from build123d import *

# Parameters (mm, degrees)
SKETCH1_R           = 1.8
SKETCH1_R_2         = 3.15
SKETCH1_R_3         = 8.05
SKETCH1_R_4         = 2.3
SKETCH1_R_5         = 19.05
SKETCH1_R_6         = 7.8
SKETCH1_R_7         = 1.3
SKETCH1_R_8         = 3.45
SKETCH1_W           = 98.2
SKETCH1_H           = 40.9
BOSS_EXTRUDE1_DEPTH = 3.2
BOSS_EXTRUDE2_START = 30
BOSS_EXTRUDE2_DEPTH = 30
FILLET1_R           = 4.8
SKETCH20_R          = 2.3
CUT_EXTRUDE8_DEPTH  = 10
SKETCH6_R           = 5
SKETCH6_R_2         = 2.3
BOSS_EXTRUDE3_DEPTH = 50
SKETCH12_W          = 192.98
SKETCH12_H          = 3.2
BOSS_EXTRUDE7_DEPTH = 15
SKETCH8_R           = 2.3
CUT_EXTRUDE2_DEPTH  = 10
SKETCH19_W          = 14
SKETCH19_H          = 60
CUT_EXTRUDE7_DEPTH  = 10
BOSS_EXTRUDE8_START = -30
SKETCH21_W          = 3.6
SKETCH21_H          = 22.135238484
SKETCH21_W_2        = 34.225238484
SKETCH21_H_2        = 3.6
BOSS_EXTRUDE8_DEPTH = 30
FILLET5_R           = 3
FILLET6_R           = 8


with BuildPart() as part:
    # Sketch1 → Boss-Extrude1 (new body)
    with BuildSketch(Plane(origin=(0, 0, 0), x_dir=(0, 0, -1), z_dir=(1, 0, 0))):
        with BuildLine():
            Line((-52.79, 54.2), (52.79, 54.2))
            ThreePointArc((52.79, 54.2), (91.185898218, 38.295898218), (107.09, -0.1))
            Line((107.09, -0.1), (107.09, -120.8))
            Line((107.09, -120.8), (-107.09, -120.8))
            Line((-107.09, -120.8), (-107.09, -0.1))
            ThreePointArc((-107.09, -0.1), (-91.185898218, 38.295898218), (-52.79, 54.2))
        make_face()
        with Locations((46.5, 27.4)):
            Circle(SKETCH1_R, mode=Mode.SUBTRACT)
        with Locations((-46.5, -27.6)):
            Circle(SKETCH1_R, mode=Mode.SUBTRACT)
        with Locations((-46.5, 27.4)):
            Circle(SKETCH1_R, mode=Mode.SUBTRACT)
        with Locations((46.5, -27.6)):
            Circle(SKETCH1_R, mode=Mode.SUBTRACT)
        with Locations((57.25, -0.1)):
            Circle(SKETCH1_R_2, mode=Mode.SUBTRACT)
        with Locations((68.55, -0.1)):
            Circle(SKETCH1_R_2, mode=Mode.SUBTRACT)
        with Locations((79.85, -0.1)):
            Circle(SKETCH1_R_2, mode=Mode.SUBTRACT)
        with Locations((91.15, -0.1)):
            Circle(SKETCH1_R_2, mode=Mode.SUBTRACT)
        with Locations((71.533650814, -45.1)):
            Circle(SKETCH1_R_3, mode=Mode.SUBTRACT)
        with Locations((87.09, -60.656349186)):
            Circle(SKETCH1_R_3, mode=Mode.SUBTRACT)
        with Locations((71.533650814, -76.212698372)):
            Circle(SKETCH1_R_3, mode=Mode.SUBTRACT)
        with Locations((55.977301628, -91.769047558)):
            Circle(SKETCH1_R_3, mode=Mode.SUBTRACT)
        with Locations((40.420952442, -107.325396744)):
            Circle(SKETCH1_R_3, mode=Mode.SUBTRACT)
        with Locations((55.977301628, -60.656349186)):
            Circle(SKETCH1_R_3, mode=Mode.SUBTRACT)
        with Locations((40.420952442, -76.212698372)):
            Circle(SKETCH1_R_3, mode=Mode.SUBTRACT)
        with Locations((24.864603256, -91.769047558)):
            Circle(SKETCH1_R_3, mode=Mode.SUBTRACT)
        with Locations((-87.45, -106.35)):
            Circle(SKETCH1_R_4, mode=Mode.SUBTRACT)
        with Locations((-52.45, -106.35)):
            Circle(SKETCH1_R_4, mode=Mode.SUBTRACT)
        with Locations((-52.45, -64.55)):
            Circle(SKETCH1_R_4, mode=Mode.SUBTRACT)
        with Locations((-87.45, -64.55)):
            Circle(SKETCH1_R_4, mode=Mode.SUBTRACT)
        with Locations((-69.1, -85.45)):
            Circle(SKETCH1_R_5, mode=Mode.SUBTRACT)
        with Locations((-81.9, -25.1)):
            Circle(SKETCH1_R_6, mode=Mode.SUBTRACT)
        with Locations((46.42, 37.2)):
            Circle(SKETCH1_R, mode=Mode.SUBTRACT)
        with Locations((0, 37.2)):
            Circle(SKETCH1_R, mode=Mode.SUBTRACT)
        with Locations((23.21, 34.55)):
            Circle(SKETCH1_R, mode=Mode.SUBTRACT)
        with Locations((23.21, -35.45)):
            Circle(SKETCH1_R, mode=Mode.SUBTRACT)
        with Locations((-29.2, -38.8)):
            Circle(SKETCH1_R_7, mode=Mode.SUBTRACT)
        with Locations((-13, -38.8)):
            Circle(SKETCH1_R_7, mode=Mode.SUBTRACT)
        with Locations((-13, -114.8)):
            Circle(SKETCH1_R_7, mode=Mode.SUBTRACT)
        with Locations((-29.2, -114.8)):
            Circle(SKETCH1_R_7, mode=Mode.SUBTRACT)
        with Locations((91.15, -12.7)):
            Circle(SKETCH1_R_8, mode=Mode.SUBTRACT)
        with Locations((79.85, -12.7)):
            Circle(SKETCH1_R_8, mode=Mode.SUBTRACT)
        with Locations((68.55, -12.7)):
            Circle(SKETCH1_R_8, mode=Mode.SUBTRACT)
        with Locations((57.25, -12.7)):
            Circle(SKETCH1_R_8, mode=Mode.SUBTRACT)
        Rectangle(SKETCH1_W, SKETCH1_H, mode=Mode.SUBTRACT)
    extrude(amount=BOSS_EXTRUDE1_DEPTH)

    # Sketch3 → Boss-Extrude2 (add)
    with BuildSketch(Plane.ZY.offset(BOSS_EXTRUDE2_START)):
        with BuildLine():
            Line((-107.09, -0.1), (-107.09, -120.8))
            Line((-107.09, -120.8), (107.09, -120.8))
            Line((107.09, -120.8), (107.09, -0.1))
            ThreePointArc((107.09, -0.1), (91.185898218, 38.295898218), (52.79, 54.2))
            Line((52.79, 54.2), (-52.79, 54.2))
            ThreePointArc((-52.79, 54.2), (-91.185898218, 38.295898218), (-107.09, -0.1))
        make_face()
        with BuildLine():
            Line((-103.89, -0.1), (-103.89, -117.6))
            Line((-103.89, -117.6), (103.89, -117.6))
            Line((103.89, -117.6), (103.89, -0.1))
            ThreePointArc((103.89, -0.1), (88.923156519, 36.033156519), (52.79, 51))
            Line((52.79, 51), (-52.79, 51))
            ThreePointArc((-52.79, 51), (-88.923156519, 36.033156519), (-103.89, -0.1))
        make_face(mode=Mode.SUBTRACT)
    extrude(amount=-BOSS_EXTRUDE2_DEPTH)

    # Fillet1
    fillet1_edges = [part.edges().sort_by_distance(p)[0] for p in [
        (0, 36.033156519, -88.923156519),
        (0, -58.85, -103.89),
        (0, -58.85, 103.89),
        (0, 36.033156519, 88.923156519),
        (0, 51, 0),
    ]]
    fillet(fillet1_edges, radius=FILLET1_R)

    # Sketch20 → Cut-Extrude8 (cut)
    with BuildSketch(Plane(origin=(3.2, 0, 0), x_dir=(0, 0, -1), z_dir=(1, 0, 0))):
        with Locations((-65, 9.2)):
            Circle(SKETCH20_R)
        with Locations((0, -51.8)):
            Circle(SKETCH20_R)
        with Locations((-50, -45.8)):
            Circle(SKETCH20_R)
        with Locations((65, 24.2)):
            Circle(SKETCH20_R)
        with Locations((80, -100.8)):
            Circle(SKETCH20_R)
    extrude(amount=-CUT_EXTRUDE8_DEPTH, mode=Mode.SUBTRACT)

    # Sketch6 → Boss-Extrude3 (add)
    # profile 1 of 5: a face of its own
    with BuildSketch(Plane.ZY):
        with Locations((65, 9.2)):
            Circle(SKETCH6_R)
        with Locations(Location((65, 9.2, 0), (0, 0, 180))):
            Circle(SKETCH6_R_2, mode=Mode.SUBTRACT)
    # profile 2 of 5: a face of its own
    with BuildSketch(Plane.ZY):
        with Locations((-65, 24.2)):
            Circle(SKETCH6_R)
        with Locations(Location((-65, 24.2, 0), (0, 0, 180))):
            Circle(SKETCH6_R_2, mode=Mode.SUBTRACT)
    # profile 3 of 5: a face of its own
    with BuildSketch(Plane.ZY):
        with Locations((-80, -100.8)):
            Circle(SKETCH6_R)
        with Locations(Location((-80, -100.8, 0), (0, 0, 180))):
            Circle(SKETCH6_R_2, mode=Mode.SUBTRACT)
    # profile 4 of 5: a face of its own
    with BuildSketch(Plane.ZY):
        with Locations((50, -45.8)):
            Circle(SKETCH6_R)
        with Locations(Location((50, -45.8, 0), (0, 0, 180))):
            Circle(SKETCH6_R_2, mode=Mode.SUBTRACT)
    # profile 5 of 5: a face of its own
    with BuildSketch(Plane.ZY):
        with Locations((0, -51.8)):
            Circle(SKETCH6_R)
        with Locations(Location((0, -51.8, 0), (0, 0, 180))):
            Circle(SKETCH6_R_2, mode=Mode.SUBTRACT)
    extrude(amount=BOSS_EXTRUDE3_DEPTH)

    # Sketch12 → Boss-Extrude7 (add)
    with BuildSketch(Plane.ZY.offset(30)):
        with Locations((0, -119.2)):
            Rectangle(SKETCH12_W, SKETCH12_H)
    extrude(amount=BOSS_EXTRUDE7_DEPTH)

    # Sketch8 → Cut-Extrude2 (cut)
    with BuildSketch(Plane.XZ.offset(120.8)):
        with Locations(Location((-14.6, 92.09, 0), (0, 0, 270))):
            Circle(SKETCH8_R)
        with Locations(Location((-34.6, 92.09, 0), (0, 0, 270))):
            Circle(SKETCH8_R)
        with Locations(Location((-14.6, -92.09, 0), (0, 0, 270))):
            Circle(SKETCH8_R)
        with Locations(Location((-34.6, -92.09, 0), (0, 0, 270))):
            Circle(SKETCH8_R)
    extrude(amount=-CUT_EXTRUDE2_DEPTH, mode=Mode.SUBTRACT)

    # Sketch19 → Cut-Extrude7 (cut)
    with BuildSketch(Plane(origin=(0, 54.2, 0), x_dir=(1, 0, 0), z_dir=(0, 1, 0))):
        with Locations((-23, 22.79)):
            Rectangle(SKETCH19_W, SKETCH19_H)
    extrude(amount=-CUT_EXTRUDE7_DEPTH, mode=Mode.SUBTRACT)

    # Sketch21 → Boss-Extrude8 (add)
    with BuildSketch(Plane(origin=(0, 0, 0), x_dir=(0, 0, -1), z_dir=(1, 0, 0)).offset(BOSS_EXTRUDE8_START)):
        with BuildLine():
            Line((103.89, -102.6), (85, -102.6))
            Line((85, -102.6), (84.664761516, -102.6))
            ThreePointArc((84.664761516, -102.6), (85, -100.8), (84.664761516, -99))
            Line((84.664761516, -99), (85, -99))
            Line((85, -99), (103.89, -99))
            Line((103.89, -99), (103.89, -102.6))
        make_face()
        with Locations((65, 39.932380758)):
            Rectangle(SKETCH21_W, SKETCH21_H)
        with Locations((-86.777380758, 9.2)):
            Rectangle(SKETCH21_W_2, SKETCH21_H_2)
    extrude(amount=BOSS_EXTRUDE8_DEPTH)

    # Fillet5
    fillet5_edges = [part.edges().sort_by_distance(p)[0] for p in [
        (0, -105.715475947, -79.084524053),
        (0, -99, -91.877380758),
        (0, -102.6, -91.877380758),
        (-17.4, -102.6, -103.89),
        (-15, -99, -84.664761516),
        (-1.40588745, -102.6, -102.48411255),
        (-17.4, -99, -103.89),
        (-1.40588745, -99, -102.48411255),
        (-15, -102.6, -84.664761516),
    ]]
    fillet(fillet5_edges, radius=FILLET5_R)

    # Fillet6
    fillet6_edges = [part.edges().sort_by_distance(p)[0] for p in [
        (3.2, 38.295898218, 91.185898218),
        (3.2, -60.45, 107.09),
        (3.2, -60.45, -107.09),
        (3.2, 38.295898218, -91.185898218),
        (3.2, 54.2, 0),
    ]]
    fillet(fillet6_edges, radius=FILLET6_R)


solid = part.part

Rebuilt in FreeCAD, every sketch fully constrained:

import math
import FreeCAD as App
import Part
import Sketcher

V = App.Vector


def edges_at(feature, points):
    """Names of the edges that pass closest to the given points."""
    edges = feature.Shape.Edges
    near = lambda p: min(range(len(edges)), key=lambda i: edges[i].distToShape(Part.Vertex(*p))[0])
    return sorted({f"Edge{near(p) + 1}" for p in points})

doc = App.newDocument("Part")
body = doc.addObject("PartDesign::Body", "Body")

# Sketch on YZ plane
sketch1 = body.newObject("Sketcher::SketchObject", "Sketch")
sketch1.AttachmentSupport = (doc.getObject("YZ_Plane"), [""])
sketch1.MapMode = "FlatFace"
sketch1.addGeometry([
    Part.LineSegment(V(54.2, -52.8, 0), V(54.2, 52.8, 0)),  # 0
    Part.ArcOfCircle(Part.Circle(V(-0.1, 52.8, 0), V(0, 0, 1), 54.3), math.radians(0), math.radians(90)),  # 1
    Part.LineSegment(V(-0.1, 107.1, 0), V(-120.8, 107.1, 0)),  # 2
    Part.LineSegment(V(-120.8, 107.1, 0), V(-120.8, -107.1, 0)),  # 3
    Part.LineSegment(V(-120.8, -107.1, 0), V(-0.1, -107.1, 0)),  # 4
    Part.ArcOfCircle(Part.Circle(V(-0.1, -52.8, 0), V(0, 0, 1), 54.3), math.radians(-90), math.radians(0)),  # 5
    Part.Circle(V(-91.8, -56, 0), V(0, 0, 1), 8.1),  # 6
    Part.Circle(V(-107.3, -40.4, 0), V(0, 0, 1), 8.1),  # 7
    Part.Circle(V(-91.8, -24.9, 0), V(0, 0, 1), 8.1),  # 8
    Part.Circle(V(-60.7, -87.1, 0), V(0, 0, 1), 8.1),  # 9
    Part.Circle(V(-76.2, -71.5, 0), V(0, 0, 1), 8.1),  # 10
    Part.Circle(V(-60.7, -56, 0), V(0, 0, 1), 8.1),  # 11
    Part.Circle(V(-45.1, -71.5, 0), V(0, 0, 1), 8.1),  # 12
    Part.Circle(V(-76.2, -40.4, 0), V(0, 0, 1), 8.1),  # 13
    Part.Circle(V(-114.8, 13, 0), V(0, 0, 1), 1.3),  # 14
    Part.Circle(V(-114.8, 29.2, 0), V(0, 0, 1), 1.3),  # 15
    Part.Circle(V(-106.3, 52.5, 0), V(0, 0, 1), 2.3),  # 16
    Part.Circle(V(-106.3, 87.5, 0), V(0, 0, 1), 2.3),  # 17
    Part.Circle(V(-85.5, 69.1, 0), V(0, 0, 1), 19.1),  # 18
    Part.Circle(V(-38.8, 13, 0), V(0, 0, 1), 1.3),  # 19
    Part.Circle(V(-38.8, 29.2, 0), V(0, 0, 1), 1.3),  # 20
    Part.Circle(V(-64.5, 52.5, 0), V(0, 0, 1), 2.3),  # 21
    Part.Circle(V(-64.5, 87.5, 0), V(0, 0, 1), 2.3),  # 22
    Part.Circle(V(-12.7, -91.2, 0), V(0, 0, 1), 3.5),  # 23
    Part.Circle(V(-12.7, -79.8, 0), V(0, 0, 1), 3.5),  # 24
    Part.Circle(V(-0.1, -91.2, 0), V(0, 0, 1), 3.1),  # 25
    Part.Circle(V(-0.1, -79.8, 0), V(0, 0, 1), 3.1),  # 26
    Part.Circle(V(-12.7, -68.5, 0), V(0, 0, 1), 3.5),  # 27
    Part.Circle(V(-12.7, -57.2, 0), V(0, 0, 1), 3.5),  # 28
    Part.Circle(V(-0.1, -68.5, 0), V(0, 0, 1), 3.1),  # 29
    Part.Circle(V(-0.1, -57.2, 0), V(0, 0, 1), 3.1),  # 30
    Part.Circle(V(-27.6, -46.5, 0), V(0, 0, 1), 1.8),  # 31
    Part.Circle(V(-35.5, -23.2, 0), V(0, 0, 1), 1.8),  # 32
    Part.Circle(V(27.4, -46.5, 0), V(0, 0, 1), 1.8),  # 33
    Part.Circle(V(37.2, -46.4, 0), V(0, 0, 1), 1.8),  # 34
    Part.Circle(V(34.5, -23.2, 0), V(0, 0, 1), 1.8),  # 35
    Part.LineSegment(V(-20.4, 49.1, 0), V(20.4, 49.1, 0)),  # 36
    Part.LineSegment(V(20.4, 49.1, 0), V(20.4, -49.1, 0)),  # 37
    Part.LineSegment(V(20.4, -49.1, 0), V(-20.4, -49.1, 0)),  # 38
    Part.LineSegment(V(-20.4, -49.1, 0), V(-20.4, 49.1, 0)),  # 39
    Part.Circle(V(-27.6, 46.5, 0), V(0, 0, 1), 1.8),  # 40
    Part.Circle(V(-25.1, 81.9, 0), V(0, 0, 1), 7.8),  # 41
    Part.Circle(V(37.2, 0, 0), V(0, 0, 1), 1.8),  # 42
    Part.Circle(V(27.4, 46.5, 0), V(0, 0, 1), 1.8),  # 43
], False)
sketch1.addConstraint([
    Sketcher.Constraint("Tangent", 0, 2, 1, 1),
    Sketcher.Constraint("Tangent", 1, 2, 2, 1),
    Sketcher.Constraint("Coincident", 2, 2, 3, 1),
    Sketcher.Constraint("Coincident", 3, 2, 4, 1),
    Sketcher.Constraint("Tangent", 4, 2, 5, 1),
    Sketcher.Constraint("Tangent", 5, 2, 0, 1),
    Sketcher.Constraint("Coincident", 36, 2, 37, 1),
    Sketcher.Constraint("Coincident", 37, 2, 38, 1),
    Sketcher.Constraint("Coincident", 38, 2, 39, 1),
    Sketcher.Constraint("Coincident", 39, 2, 36, 1),
    Sketcher.Constraint("Vertical", 0),
    Sketcher.Constraint("Horizontal", 2),
    Sketcher.Constraint("Vertical", 3),
    Sketcher.Constraint("Horizontal", 4),
    Sketcher.Constraint("Horizontal", 36),
    Sketcher.Constraint("Vertical", 37),
    Sketcher.Constraint("Horizontal", 38),
    Sketcher.Constraint("Vertical", 39),
    Sketcher.Constraint("Equal", 1, 5),
    Sketcher.Constraint("Equal", 6, 7),
    Sketcher.Constraint("Equal", 7, 8),
    Sketcher.Constraint("Equal", 8, 9),
    Sketcher.Constraint("Equal", 9, 10),
    Sketcher.Constraint("Equal", 10, 11),
    Sketcher.Constraint("Equal", 11, 12),
    Sketcher.Constraint("Equal", 12, 13),
    Sketcher.Constraint("Equal", 14, 15),
    Sketcher.Constraint("Equal", 16, 17),
    Sketcher.Constraint("Equal", 15, 19),
    Sketcher.Constraint("Equal", 19, 20),
    Sketcher.Constraint("Equal", 17, 21),
    Sketcher.Constraint("Equal", 21, 22),
    Sketcher.Constraint("Equal", 23, 24),
    Sketcher.Constraint("Equal", 25, 26),
    Sketcher.Constraint("Equal", 24, 27),
    Sketcher.Constraint("Equal", 27, 28),
    Sketcher.Constraint("Equal", 26, 29),
    Sketcher.Constraint("Equal", 29, 30),
    Sketcher.Constraint("Equal", 31, 32),
    Sketcher.Constraint("Equal", 32, 33),
    Sketcher.Constraint("Equal", 33, 34),
    Sketcher.Constraint("Equal", 34, 35),
    Sketcher.Constraint("Equal", 35, 40),
    Sketcher.Constraint("Equal", 40, 42),
    Sketcher.Constraint("Equal", 42, 43),
    Sketcher.Constraint("Symmetric", 36, 2, 38, 2, -1, 1),
    Sketcher.Constraint("Symmetric", 31, 3, 40, 3, -1),
    Sketcher.Constraint("Symmetric", 33, 3, 43, 3, -1),
    Sketcher.Constraint("PointOnObject", 42, 3, -1),
    Sketcher.Constraint("Horizontal", 6, 3, 11, 3),
    Sketcher.Constraint("Horizontal", 10, 3, 12, 3),
    Sketcher.Constraint("Horizontal", 7, 3, 13, 3),
    Sketcher.Constraint("Horizontal", 14, 3, 19, 3),
    Sketcher.Constraint("Horizontal", 15, 3, 20, 3),
    Sketcher.Constraint("Horizontal", 16, 3, 21, 3),
    Sketcher.Constraint("Horizontal", 17, 3, 22, 3),
    Sketcher.Constraint("Horizontal", 23, 3, 25, 3),
    Sketcher.Constraint("Horizontal", 24, 3, 26, 3),
    Sketcher.Constraint("Horizontal", 27, 3, 29, 3),
    Sketcher.Constraint("Horizontal", 28, 3, 30, 3),
    Sketcher.Constraint("Horizontal", 31, 3, 33, 3),
    Sketcher.Constraint("Horizontal", 32, 3, 35, 3),
    Sketcher.Constraint("Vertical", 6, 3, 8, 3),
    Sketcher.Constraint("Vertical", 9, 3, 11, 3),
    Sketcher.Constraint("Vertical", 10, 3, 13, 3),
    Sketcher.Constraint("Vertical", 14, 3, 15, 3),
    Sketcher.Constraint("Vertical", 16, 3, 17, 3),
    Sketcher.Constraint("Vertical", 19, 3, 20, 3),
    Sketcher.Constraint("Vertical", 21, 3, 22, 3),
    Sketcher.Constraint("Vertical", 23, 3, 24, 3),
    Sketcher.Constraint("Vertical", 5, 3, 25, 3),
    Sketcher.Constraint("Vertical", 25, 3, 26, 3),
    Sketcher.Constraint("Vertical", 24, 3, 27, 3),
    Sketcher.Constraint("Vertical", 27, 3, 28, 3),
    Sketcher.Constraint("Vertical", 26, 3, 29, 3),
    Sketcher.Constraint("Vertical", 29, 3, 30, 3),
    Sketcher.Constraint("Vertical", 34, 3, 42, 3),
    Sketcher.Constraint("Diameter", 6, 16.1),
    Sketcher.Constraint("Diameter", 14, 2.6),
    Sketcher.Constraint("Diameter", 16, 4.6),
    Sketcher.Constraint("Diameter", 18, 38.1),
    Sketcher.Constraint("Diameter", 23, 6.9),
    Sketcher.Constraint("Diameter", 25, 6.3),
    Sketcher.Constraint("Diameter", 31, 3.6),
    Sketcher.Constraint("Diameter", 41, 15.6),
    Sketcher.Constraint("Radius", 1, 54.3),
    Sketcher.Constraint("DistanceX", 2, 2, 2, 1, 120.7),
    Sketcher.Constraint("DistanceX", 36, 1, 36, 2, 40.9),
    Sketcher.Constraint("DistanceY", 37, 2, 37, 1, 98.2),
    Sketcher.Constraint("DistanceY", -1, 1, 14, 3, 13.0),
    Sketcher.Constraint("DistanceX", 12, 3, 5, 3, 45.0),
    Sketcher.Constraint("DistanceY", 16, 3, 17, 3, 35.0),
    Sketcher.Constraint("DistanceX", 41, 3, 1, 3, 25.0),
    Sketcher.Constraint("DistanceX", 40, 3, 43, 3, 55.0),
    Sketcher.Constraint("DistanceX", 42, 3, 0, 2, 17.0),
    Sketcher.Constraint("DistanceY", 35, 3, 0, 2, 76.0),
    Sketcher.Constraint("DistanceX", 2, 2, 15, 3, 6.0),
    Sketcher.Constraint("DistanceY", 3, 2, 9, 3, 20.0),
    Sketcher.Constraint("DistanceY", 0, 1, 0, 2, 105.58),
    Sketcher.Constraint("DistanceX", 1, 3, -1, 1, 0.1),
    Sketcher.Constraint("DistanceY", -1, 1, 15, 3, 29.2),
    Sketcher.Constraint("DistanceY", -1, 1, 18, 3, 69.1),
    Sketcher.Constraint("DistanceX", 19, 3, -1, 1, 38.8),
    Sketcher.Constraint("DistanceX", 23, 3, -1, 1, 12.7),
    Sketcher.Constraint("DistanceX", 31, 3, -1, 1, 27.6),
    Sketcher.Constraint("DistanceY", 31, 3, -1, 1, 46.5),
    Sketcher.Constraint("DistanceY", -1, 1, 41, 3, 81.9),
    Sketcher.Constraint("DistanceX", 16, 3, 18, 3, 20.9),
    Sketcher.Constraint("DistanceX", 18, 3, 21, 3, 20.9),
    Sketcher.Constraint("DistanceY", 23, 3, 24, 3, 11.3),
    Sketcher.Constraint("DistanceY", 24, 3, 27, 3, 11.3),
    Sketcher.Constraint("DistanceY", 27, 3, 28, 3, 11.3),
    Sketcher.Constraint("DistanceY", -1, 1, 1, 3, 52.79),
    Sketcher.Constraint("DistanceX", 16, 3, -1, 1, 106.35),
    Sketcher.Constraint("DistanceY", -1, 1, 16, 3, 52.45),
    Sketcher.Constraint("DistanceY", 23, 3, -1, 1, 91.15),
    Sketcher.Constraint("DistanceX", 32, 3, -1, 1, 35.45),
    Sketcher.Constraint("DistanceY", 34, 3, -1, 1, 46.42),
    Sketcher.Constraint("DistanceX", -1, 1, 35, 3, 34.55),
    Sketcher.Constraint("DistanceY", 6, 3, -1, 1, 55.977302),
    Sketcher.Constraint("DistanceX", 10, 3, -1, 1, 76.212698),
    Sketcher.Constraint("DistanceY", 6, 3, 8, 3, 31.112698),
    Sketcher.Constraint("DistanceX", 6, 3, 9, 3, 31.112698),
    Sketcher.Constraint("DistanceX", 7, 3, 10, 3, 31.112698),
    Sketcher.Constraint("DistanceY", 10, 3, 7, 3, 31.112698),
    Sketcher.Constraint("DistanceX", 9, 3, -1, 1, 60.656349),
    Sketcher.Constraint("DistanceY", 10, 3, -1, 1, 71.533651),
])
pad1 = body.newObject("PartDesign::Pad", "Pad")
pad1.Profile = sketch1
pad1.Length = 3.2

# Sketch on YZ plane
sketch2 = body.newObject("Sketcher::SketchObject", "Sketch001")
sketch2.AttachmentSupport = (doc.getObject("YZ_Plane"), [""])
sketch2.MapMode = "FlatFace"
sketch2.AttachmentOffset = App.Placement(V(0, 0, -30), App.Rotation())
sketch2.addGeometry([
    Part.LineSegment(V(0, -107, 0), V(-121, -107, 0)),  # 0
    Part.LineSegment(V(-121, -107, 0), V(-121, 107, 0)),  # 1
    Part.LineSegment(V(-121, 107, 0), V(0, 107, 0)),  # 2
    Part.ArcOfCircle(Part.Circle(V(0, 53, 0), V(0, 0, 1), 54), math.radians(0), math.radians(90)),  # 3
    Part.LineSegment(V(54, 53, 0), V(54, -53, 0)),  # 4
    Part.ArcOfCircle(Part.Circle(V(0, -53, 0), V(0, 0, 1), 54), math.radians(-90), math.radians(0)),  # 5
    Part.LineSegment(V(-118, -104, 0), V(0, -104, 0)),  # 6
    Part.ArcOfCircle(Part.Circle(V(0, -53, 0), V(0, 0, 1), 51), math.radians(-90), math.radians(0)),  # 7
    Part.LineSegment(V(51, -53, 0), V(51, 53, 0)),  # 8
    Part.ArcOfCircle(Part.Circle(V(0, 53, 0), V(0, 0, 1), 51), math.radians(0), math.radians(90)),  # 9
    Part.LineSegment(V(0, 104, 0), V(-118, 104, 0)),  # 10
    Part.LineSegment(V(-118, 104, 0), V(-118, -104, 0)),  # 11
], False)
sketch2.addConstraint([
    Sketcher.Constraint("Coincident", 0, 2, 1, 1),
    Sketcher.Constraint("Coincident", 1, 2, 2, 1),
    Sketcher.Constraint("Tangent", 2, 2, 3, 2),
    Sketcher.Constraint("Tangent", 3, 1, 4, 1),
    Sketcher.Constraint("Tangent", 4, 2, 5, 2),
    Sketcher.Constraint("Tangent", 5, 1, 0, 1),
    Sketcher.Constraint("Tangent", 6, 2, 7, 1),
    Sketcher.Constraint("Tangent", 7, 2, 8, 1),
    Sketcher.Constraint("Tangent", 8, 2, 9, 1),
    Sketcher.Constraint("Tangent", 9, 2, 10, 1),
    Sketcher.Constraint("Coincident", 10, 2, 11, 1),
    Sketcher.Constraint("Coincident", 11, 2, 6, 1),
    Sketcher.Constraint("Horizontal", 0),
    Sketcher.Constraint("Vertical", 1),
    Sketcher.Constraint("Horizontal", 2),
    Sketcher.Constraint("Vertical", 4),
    Sketcher.Constraint("Horizontal", 6),
    Sketcher.Constraint("Vertical", 8),
    Sketcher.Constraint("Horizontal", 10),
    Sketcher.Constraint("Vertical", 11),
    Sketcher.Constraint("Coincident", 7, 3, 5, 3),
    Sketcher.Constraint("Coincident", 9, 3, 3, 3),
    Sketcher.Constraint("Equal", 3, 5),
    Sketcher.Constraint("Radius", 3, 54.3),
    Sketcher.Constraint("Radius", 7, 51.1),
    Sketcher.Constraint("DistanceX", 0, 2, 0, 1, 120.7),
    Sketcher.Constraint("DistanceX", 6, 1, 6, 2, 117.5),
    Sketcher.Constraint("DistanceX", -1, 1, 7, 2, 51.0),
    Sketcher.Constraint("DistanceY", 1, 1, 1, 2, 214.18),
    Sketcher.Constraint("DistanceY", -1, 1, 3, 3, 52.79),
])
pad2 = body.newObject("PartDesign::Pad", "Pad001")
pad2.Profile = sketch2
pad2.Length = 30
doc.recompute()

fillet = body.newObject("PartDesign::Fillet", "Fillet")
fillet.Base = (pad2, edges_at(pad2, [
    (0, 36.033, -88.923),
    (0, -58.85, -103.89),
    (0, -58.85, 103.89),
    (0, 36.033, 88.923),
    (0, 51, 0),
]))
fillet.Radius = 4.8

# Sketch on YZ plane
sketch3 = body.newObject("Sketcher::SketchObject", "Sketch002")
sketch3.AttachmentSupport = (doc.getObject("YZ_Plane"), [""])
sketch3.MapMode = "FlatFace"
sketch3.AttachmentOffset = App.Placement(V(0, 0, 3.2), App.Rotation())
sketch3.addGeometry([
    Part.Circle(V(9.2, 65, 0), V(0, 0, 1), 2.3),  # 0
    Part.Circle(V(-51.8, 0, 0), V(0, 0, 1), 2.3),  # 1
    Part.Circle(V(-45.8, 50, 0), V(0, 0, 1), 2.3),  # 2
    Part.Circle(V(24.2, -65, 0), V(0, 0, 1), 2.3),  # 3
    Part.Circle(V(-100.8, -80, 0), V(0, 0, 1), 2.3),  # 4
], False)
sketch3.addConstraint([
    Sketcher.Constraint("Equal", 0, 1),
    Sketcher.Constraint("Equal", 1, 2),
    Sketcher.Constraint("Equal", 2, 3),
    Sketcher.Constraint("Equal", 3, 4),
    Sketcher.Constraint("PointOnObject", 1, 3, -1),
    Sketcher.Constraint("Diameter", 0, 4.6),
    Sketcher.Constraint("DistanceY", -1, 1, 0, 3, 65.0),
    Sketcher.Constraint("DistanceY", -1, 1, 2, 3, 50.0),
    Sketcher.Constraint("DistanceY", 3, 3, -1, 1, 65.0),
    Sketcher.Constraint("DistanceY", 4, 3, -1, 1, 80.0),
    Sketcher.Constraint("DistanceX", 1, 3, 0, 3, 61.0),
    Sketcher.Constraint("DistanceX", 1, 3, 2, 3, 6.0),
    Sketcher.Constraint("DistanceX", 1, 3, 3, 3, 76.0),
    Sketcher.Constraint("DistanceX", 4, 3, 1, 3, 49.0),
    Sketcher.Constraint("DistanceX", -1, 1, 0, 3, 9.2),
])
pocket1 = body.newObject("PartDesign::Pocket", "Pocket")
pocket1.Profile = sketch3
pocket1.Length = 10

# Sketch on YZ plane
sketch4 = body.newObject("Sketcher::SketchObject", "Sketch003")
sketch4.AttachmentSupport = (doc.getObject("YZ_Plane"), [""])
sketch4.MapMode = "FlatFace"
sketch4.addGeometry([
    Part.Circle(V(9.2, 65, 0), V(0, 0, 1), 5),  # 0
    Part.Circle(V(9.2, 65, 0), V(0, 0, 1), 2.3),  # 1
    Part.Circle(V(24.2, -65, 0), V(0, 0, 1), 5),  # 2
    Part.Circle(V(24.2, -65, 0), V(0, 0, 1), 2.3),  # 3
    Part.Circle(V(-100.8, -80, 0), V(0, 0, 1), 5),  # 4
    Part.Circle(V(-100.8, -80, 0), V(0, 0, 1), 2.3),  # 5
    Part.Circle(V(-45.8, 50, 0), V(0, 0, 1), 5),  # 6
    Part.Circle(V(-45.8, 50, 0), V(0, 0, 1), 2.3),  # 7
    Part.Circle(V(-51.8, 0, 0), V(0, 0, 1), 5),  # 8
    Part.Circle(V(-51.8, 0, 0), V(0, 0, 1), 2.3),  # 9
], False)
sketch4.addConstraint([
    Sketcher.Constraint("Coincident", 1, 3, 0, 3),
    Sketcher.Constraint("Coincident", 3, 3, 2, 3),
    Sketcher.Constraint("Coincident", 5, 3, 4, 3),
    Sketcher.Constraint("Coincident", 7, 3, 6, 3),
    Sketcher.Constraint("Coincident", 9, 3, 8, 3),
    Sketcher.Constraint("Equal", 0, 2),
    Sketcher.Constraint("Equal", 1, 3),
    Sketcher.Constraint("Equal", 2, 4),
    Sketcher.Constraint("Equal", 3, 5),
    Sketcher.Constraint("Equal", 4, 6),
    Sketcher.Constraint("Equal", 5, 7),
    Sketcher.Constraint("Equal", 6, 8),
    Sketcher.Constraint("Equal", 7, 9),
    Sketcher.Constraint("PointOnObject", 8, 3, -1),
    Sketcher.Constraint("Diameter", 0, 10.0),
    Sketcher.Constraint("Diameter", 1, 4.6),
    Sketcher.Constraint("DistanceY", -1, 1, 0, 3, 65.0),
    Sketcher.Constraint("DistanceY", 2, 3, -1, 1, 65.0),
    Sketcher.Constraint("DistanceY", 4, 3, -1, 1, 80.0),
    Sketcher.Constraint("DistanceY", -1, 1, 6, 3, 50.0),
    Sketcher.Constraint("DistanceX", 0, 3, 2, 3, 15.0),
    Sketcher.Constraint("DistanceX", 4, 3, 2, 3, 125.0),
    Sketcher.Constraint("DistanceX", 6, 3, 0, 3, 55.0),
    Sketcher.Constraint("DistanceX", 8, 3, 6, 3, 6.0),
    Sketcher.Constraint("DistanceX", -1, 1, 0, 3, 9.2),
])
pad3 = body.newObject("PartDesign::Pad", "Pad002")
pad3.Profile = sketch4
pad3.Length = 50
pad3.Reversed = True

# Sketch on YZ plane
sketch5 = body.newObject("Sketcher::SketchObject", "Sketch004")
sketch5.AttachmentSupport = (doc.getObject("YZ_Plane"), [""])
sketch5.MapMode = "FlatFace"
sketch5.AttachmentOffset = App.Placement(V(0, 0, -30), App.Rotation())
sketch5.addGeometry([
    Part.LineSegment(V(-117.6, -96.5, 0), V(-120.8, -96.5, 0)),
    Part.LineSegment(V(-120.8, -96.5, 0), V(-120.8, 96.5, 0)),
    Part.LineSegment(V(-120.8, 96.5, 0), V(-117.6, 96.5, 0)),
    Part.LineSegment(V(-117.6, 96.5, 0), V(-117.6, -96.5, 0)),
], False)
sketch5.addConstraint([
    Sketcher.Constraint("Coincident", 0, 2, 1, 1),
    Sketcher.Constraint("Coincident", 1, 2, 2, 1),
    Sketcher.Constraint("Coincident", 2, 2, 3, 1),
    Sketcher.Constraint("Coincident", 3, 2, 0, 1),
    Sketcher.Constraint("Horizontal", 0),
    Sketcher.Constraint("Vertical", 1),
    Sketcher.Constraint("Horizontal", 2),
    Sketcher.Constraint("Vertical", 3),
    Sketcher.Constraint("DistanceX", 0, 2, 0, 1, 3.2),
    Sketcher.Constraint("DistanceY", 1, 1, 1, 2, 192.98),
    Sketcher.Constraint("DistanceX", 0, 2, -1, 1, 120.8),
    Sketcher.Constraint("DistanceY", 0, 2, -1, 1, 96.49),
])
pad4 = body.newObject("PartDesign::Pad", "Pad003")
pad4.Profile = sketch5
pad4.Length = 15
pad4.Reversed = True

# Sketch on XZ plane
sketch6 = body.newObject("Sketcher::SketchObject", "Sketch005")
sketch6.AttachmentSupport = (doc.getObject("XZ_Plane"), [""])
sketch6.MapMode = "FlatFace"
sketch6.AttachmentOffset = App.Placement(V(0, 0, 120.8), App.Rotation())
sketch6.addGeometry([
    Part.Circle(V(-14.6, 92.1, 0), V(0, 0, 1), 2.3),
    Part.Circle(V(-34.6, 92.1, 0), V(0, 0, 1), 2.3),
    Part.Circle(V(-14.6, -92.1, 0), V(0, 0, 1), 2.3),
    Part.Circle(V(-34.6, -92.1, 0), V(0, 0, 1), 2.3),
], False)
sketch6.addConstraint([
    Sketcher.Constraint("Equal", 0, 1),
    Sketcher.Constraint("Equal", 1, 2),
    Sketcher.Constraint("Equal", 2, 3),
    Sketcher.Constraint("Symmetric", 0, 3, 2, 3, -1),
    Sketcher.Constraint("Symmetric", 1, 3, 3, 3, -1),
    Sketcher.Constraint("Horizontal", 0, 3, 1, 3),
    Sketcher.Constraint("Diameter", 0, 4.6),
    Sketcher.Constraint("DistanceX", 1, 3, 0, 3, 20.0),
    Sketcher.Constraint("DistanceX", 0, 3, -1, 1, 14.6),
    Sketcher.Constraint("DistanceY", -1, 1, 0, 3, 92.09),
])
pocket2 = body.newObject("PartDesign::Pocket", "Pocket001")
pocket2.Profile = sketch6
pocket2.Length = 10

# Sketch on XZ plane
sketch7 = body.newObject("Sketcher::SketchObject", "Sketch006")
sketch7.AttachmentSupport = (doc.getObject("XZ_Plane"), [""])
sketch7.MapMode = "FlatFace"
sketch7.AttachmentOffset = App.Placement(V(0, 0, -54.2), App.Rotation())
sketch7.addGeometry([
    Part.LineSegment(V(-30, -53, 0), V(-30, 7, 0)),
    Part.LineSegment(V(-30, 7, 0), V(-16, 7, 0)),
    Part.LineSegment(V(-16, 7, 0), V(-16, -53, 0)),
    Part.LineSegment(V(-16, -53, 0), V(-30, -53, 0)),
], False)
sketch7.addConstraint([
    Sketcher.Constraint("Coincident", 0, 2, 1, 1),
    Sketcher.Constraint("Coincident", 1, 2, 2, 1),
    Sketcher.Constraint("Coincident", 2, 2, 3, 1),
    Sketcher.Constraint("Coincident", 3, 2, 0, 1),
    Sketcher.Constraint("Vertical", 0),
    Sketcher.Constraint("Horizontal", 1),
    Sketcher.Constraint("Vertical", 2),
    Sketcher.Constraint("Horizontal", 3),
    Sketcher.Constraint("DistanceX", 1, 1, 1, 2, 14.0),
    Sketcher.Constraint("DistanceY", 0, 1, 0, 2, 60.0),
    Sketcher.Constraint("DistanceX", 0, 2, -1, 1, 30.0),
    Sketcher.Constraint("DistanceY", -1, 1, 0, 2, 7.21),
])
pocket3 = body.newObject("PartDesign::Pocket", "Pocket002")
pocket3.Profile = sketch7
pocket3.Length = 10
pocket3.Reversed = True

# Sketch on YZ plane
sketch8 = body.newObject("Sketcher::SketchObject", "Sketch007")
sketch8.AttachmentSupport = (doc.getObject("YZ_Plane"), [""])
sketch8.MapMode = "FlatFace"
sketch8.AttachmentOffset = App.Placement(V(0, 0, -30), App.Rotation())
sketch8.addGeometry([
    Part.LineSegment(V(-102.6, -84.7, 0), V(-102.6, -103.9, 0)),  # 0
    Part.LineSegment(V(-102.6, -103.9, 0), V(-99, -103.9, 0)),  # 1
    Part.LineSegment(V(-99, -103.9, 0), V(-99, -84.7, 0)),  # 2
    Part.ArcOfCircle(Part.Circle(V(-100.8, -80, 0), V(0, 0, 1), 5), math.radians(-111), math.radians(-69)),  # 3
    Part.LineSegment(V(51, -63.2, 0), V(28.9, -63.2, 0)),  # 4
    Part.LineSegment(V(28.9, -63.2, 0), V(28.9, -66.8, 0)),  # 5
    Part.LineSegment(V(28.9, -66.8, 0), V(51, -66.8, 0)),  # 6
    Part.LineSegment(V(51, -66.8, 0), V(51, -63.2, 0)),  # 7
    Part.LineSegment(V(11, 103.9, 0), V(7.4, 103.9, 0)),  # 8
    Part.LineSegment(V(7.4, 103.9, 0), V(7.4, 69.7, 0)),  # 9
    Part.LineSegment(V(7.4, 69.7, 0), V(11, 69.7, 0)),  # 10
    Part.LineSegment(V(11, 69.7, 0), V(11, 103.9, 0)),  # 11
], False)
sketch8.addConstraint([
    Sketcher.Constraint("Coincident", 0, 2, 1, 1),
    Sketcher.Constraint("Coincident", 1, 2, 2, 1),
    Sketcher.Constraint("Coincident", 2, 2, 3, 2),
    Sketcher.Constraint("Coincident", 3, 1, 0, 1),
    Sketcher.Constraint("Coincident", 4, 2, 5, 1),
    Sketcher.Constraint("Coincident", 5, 2, 6, 1),
    Sketcher.Constraint("Coincident", 6, 2, 7, 1),
    Sketcher.Constraint("Coincident", 7, 2, 4, 1),
    Sketcher.Constraint("Coincident", 8, 2, 9, 1),
    Sketcher.Constraint("Coincident", 9, 2, 10, 1),
    Sketcher.Constraint("Coincident", 10, 2, 11, 1),
    Sketcher.Constraint("Coincident", 11, 2, 8, 1),
    Sketcher.Constraint("Vertical", 0),
    Sketcher.Constraint("Horizontal", 1),
    Sketcher.Constraint("Vertical", 2),
    Sketcher.Constraint("Horizontal", 4),
    Sketcher.Constraint("Vertical", 5),
    Sketcher.Constraint("Horizontal", 6),
    Sketcher.Constraint("Vertical", 7),
    Sketcher.Constraint("Horizontal", 8),
    Sketcher.Constraint("Vertical", 9),
    Sketcher.Constraint("Horizontal", 10),
    Sketcher.Constraint("Vertical", 11),
    Sketcher.Constraint("Horizontal", 2, 2, 3, 1),
    Sketcher.Constraint("Equal", 1, 8),
    Sketcher.Constraint("Equal", 10, 5),
    Sketcher.Constraint("Radius", 3, 5.0),
    Sketcher.Constraint("DistanceX", 1, 1, 1, 2, 3.6),
    Sketcher.Constraint("DistanceY", 3, 3, -1, 1, 80.0),
    Sketcher.Constraint("DistanceX", 1, 2, -1, 1, 99.0),
    Sketcher.Constraint("DistanceX", -1, 1, 6, 2, 51.0),
    Sketcher.Constraint("DistanceX", -1, 1, 10, 2, 11.0),
    Sketcher.Constraint("DistanceY", 4, 2, -1, 1, 63.2),
    Sketcher.Constraint("DistanceY", 0, 2, -1, 1, 103.89),
    Sketcher.Constraint("DistanceY", -1, 1, 8, 2, 103.89),
    Sketcher.Constraint("DistanceX", 4, 2, 4, 1, 22.135238),
    Sketcher.Constraint("DistanceY", 9, 2, 9, 1, 34.225238),
])
pad5 = body.newObject("PartDesign::Pad", "Pad004")
pad5.Profile = sketch8
pad5.Length = 30
doc.recompute()

fillet2 = body.newObject("PartDesign::Fillet", "Fillet001")
fillet2.Base = (pad5, edges_at(pad5, [
    (0, -105.715, -79.085),
    (0, -99, -91.877),
    (0, -102.6, -91.877),
    (-17.4, -102.6, -103.89),
    (-15, -99, -84.665),
    (-1.406, -102.6, -102.484),
    (-17.4, -99, -103.89),
    (-1.406, -99, -102.484),
    (-15, -102.6, -84.665),
]))
fillet2.Radius = 3
doc.recompute()

fillet3 = body.newObject("PartDesign::Fillet", "Fillet002")
fillet3.Base = (fillet2, edges_at(fillet2, [
    (3.2, 38.296, 91.186),
    (3.2, -60.45, 107.09),
    (3.2, -60.45, -107.09),
    (3.2, 38.296, -91.186),
    (3.2, 54.2, 0),
]))
fillet3.Radius = 8

doc.recompute()
